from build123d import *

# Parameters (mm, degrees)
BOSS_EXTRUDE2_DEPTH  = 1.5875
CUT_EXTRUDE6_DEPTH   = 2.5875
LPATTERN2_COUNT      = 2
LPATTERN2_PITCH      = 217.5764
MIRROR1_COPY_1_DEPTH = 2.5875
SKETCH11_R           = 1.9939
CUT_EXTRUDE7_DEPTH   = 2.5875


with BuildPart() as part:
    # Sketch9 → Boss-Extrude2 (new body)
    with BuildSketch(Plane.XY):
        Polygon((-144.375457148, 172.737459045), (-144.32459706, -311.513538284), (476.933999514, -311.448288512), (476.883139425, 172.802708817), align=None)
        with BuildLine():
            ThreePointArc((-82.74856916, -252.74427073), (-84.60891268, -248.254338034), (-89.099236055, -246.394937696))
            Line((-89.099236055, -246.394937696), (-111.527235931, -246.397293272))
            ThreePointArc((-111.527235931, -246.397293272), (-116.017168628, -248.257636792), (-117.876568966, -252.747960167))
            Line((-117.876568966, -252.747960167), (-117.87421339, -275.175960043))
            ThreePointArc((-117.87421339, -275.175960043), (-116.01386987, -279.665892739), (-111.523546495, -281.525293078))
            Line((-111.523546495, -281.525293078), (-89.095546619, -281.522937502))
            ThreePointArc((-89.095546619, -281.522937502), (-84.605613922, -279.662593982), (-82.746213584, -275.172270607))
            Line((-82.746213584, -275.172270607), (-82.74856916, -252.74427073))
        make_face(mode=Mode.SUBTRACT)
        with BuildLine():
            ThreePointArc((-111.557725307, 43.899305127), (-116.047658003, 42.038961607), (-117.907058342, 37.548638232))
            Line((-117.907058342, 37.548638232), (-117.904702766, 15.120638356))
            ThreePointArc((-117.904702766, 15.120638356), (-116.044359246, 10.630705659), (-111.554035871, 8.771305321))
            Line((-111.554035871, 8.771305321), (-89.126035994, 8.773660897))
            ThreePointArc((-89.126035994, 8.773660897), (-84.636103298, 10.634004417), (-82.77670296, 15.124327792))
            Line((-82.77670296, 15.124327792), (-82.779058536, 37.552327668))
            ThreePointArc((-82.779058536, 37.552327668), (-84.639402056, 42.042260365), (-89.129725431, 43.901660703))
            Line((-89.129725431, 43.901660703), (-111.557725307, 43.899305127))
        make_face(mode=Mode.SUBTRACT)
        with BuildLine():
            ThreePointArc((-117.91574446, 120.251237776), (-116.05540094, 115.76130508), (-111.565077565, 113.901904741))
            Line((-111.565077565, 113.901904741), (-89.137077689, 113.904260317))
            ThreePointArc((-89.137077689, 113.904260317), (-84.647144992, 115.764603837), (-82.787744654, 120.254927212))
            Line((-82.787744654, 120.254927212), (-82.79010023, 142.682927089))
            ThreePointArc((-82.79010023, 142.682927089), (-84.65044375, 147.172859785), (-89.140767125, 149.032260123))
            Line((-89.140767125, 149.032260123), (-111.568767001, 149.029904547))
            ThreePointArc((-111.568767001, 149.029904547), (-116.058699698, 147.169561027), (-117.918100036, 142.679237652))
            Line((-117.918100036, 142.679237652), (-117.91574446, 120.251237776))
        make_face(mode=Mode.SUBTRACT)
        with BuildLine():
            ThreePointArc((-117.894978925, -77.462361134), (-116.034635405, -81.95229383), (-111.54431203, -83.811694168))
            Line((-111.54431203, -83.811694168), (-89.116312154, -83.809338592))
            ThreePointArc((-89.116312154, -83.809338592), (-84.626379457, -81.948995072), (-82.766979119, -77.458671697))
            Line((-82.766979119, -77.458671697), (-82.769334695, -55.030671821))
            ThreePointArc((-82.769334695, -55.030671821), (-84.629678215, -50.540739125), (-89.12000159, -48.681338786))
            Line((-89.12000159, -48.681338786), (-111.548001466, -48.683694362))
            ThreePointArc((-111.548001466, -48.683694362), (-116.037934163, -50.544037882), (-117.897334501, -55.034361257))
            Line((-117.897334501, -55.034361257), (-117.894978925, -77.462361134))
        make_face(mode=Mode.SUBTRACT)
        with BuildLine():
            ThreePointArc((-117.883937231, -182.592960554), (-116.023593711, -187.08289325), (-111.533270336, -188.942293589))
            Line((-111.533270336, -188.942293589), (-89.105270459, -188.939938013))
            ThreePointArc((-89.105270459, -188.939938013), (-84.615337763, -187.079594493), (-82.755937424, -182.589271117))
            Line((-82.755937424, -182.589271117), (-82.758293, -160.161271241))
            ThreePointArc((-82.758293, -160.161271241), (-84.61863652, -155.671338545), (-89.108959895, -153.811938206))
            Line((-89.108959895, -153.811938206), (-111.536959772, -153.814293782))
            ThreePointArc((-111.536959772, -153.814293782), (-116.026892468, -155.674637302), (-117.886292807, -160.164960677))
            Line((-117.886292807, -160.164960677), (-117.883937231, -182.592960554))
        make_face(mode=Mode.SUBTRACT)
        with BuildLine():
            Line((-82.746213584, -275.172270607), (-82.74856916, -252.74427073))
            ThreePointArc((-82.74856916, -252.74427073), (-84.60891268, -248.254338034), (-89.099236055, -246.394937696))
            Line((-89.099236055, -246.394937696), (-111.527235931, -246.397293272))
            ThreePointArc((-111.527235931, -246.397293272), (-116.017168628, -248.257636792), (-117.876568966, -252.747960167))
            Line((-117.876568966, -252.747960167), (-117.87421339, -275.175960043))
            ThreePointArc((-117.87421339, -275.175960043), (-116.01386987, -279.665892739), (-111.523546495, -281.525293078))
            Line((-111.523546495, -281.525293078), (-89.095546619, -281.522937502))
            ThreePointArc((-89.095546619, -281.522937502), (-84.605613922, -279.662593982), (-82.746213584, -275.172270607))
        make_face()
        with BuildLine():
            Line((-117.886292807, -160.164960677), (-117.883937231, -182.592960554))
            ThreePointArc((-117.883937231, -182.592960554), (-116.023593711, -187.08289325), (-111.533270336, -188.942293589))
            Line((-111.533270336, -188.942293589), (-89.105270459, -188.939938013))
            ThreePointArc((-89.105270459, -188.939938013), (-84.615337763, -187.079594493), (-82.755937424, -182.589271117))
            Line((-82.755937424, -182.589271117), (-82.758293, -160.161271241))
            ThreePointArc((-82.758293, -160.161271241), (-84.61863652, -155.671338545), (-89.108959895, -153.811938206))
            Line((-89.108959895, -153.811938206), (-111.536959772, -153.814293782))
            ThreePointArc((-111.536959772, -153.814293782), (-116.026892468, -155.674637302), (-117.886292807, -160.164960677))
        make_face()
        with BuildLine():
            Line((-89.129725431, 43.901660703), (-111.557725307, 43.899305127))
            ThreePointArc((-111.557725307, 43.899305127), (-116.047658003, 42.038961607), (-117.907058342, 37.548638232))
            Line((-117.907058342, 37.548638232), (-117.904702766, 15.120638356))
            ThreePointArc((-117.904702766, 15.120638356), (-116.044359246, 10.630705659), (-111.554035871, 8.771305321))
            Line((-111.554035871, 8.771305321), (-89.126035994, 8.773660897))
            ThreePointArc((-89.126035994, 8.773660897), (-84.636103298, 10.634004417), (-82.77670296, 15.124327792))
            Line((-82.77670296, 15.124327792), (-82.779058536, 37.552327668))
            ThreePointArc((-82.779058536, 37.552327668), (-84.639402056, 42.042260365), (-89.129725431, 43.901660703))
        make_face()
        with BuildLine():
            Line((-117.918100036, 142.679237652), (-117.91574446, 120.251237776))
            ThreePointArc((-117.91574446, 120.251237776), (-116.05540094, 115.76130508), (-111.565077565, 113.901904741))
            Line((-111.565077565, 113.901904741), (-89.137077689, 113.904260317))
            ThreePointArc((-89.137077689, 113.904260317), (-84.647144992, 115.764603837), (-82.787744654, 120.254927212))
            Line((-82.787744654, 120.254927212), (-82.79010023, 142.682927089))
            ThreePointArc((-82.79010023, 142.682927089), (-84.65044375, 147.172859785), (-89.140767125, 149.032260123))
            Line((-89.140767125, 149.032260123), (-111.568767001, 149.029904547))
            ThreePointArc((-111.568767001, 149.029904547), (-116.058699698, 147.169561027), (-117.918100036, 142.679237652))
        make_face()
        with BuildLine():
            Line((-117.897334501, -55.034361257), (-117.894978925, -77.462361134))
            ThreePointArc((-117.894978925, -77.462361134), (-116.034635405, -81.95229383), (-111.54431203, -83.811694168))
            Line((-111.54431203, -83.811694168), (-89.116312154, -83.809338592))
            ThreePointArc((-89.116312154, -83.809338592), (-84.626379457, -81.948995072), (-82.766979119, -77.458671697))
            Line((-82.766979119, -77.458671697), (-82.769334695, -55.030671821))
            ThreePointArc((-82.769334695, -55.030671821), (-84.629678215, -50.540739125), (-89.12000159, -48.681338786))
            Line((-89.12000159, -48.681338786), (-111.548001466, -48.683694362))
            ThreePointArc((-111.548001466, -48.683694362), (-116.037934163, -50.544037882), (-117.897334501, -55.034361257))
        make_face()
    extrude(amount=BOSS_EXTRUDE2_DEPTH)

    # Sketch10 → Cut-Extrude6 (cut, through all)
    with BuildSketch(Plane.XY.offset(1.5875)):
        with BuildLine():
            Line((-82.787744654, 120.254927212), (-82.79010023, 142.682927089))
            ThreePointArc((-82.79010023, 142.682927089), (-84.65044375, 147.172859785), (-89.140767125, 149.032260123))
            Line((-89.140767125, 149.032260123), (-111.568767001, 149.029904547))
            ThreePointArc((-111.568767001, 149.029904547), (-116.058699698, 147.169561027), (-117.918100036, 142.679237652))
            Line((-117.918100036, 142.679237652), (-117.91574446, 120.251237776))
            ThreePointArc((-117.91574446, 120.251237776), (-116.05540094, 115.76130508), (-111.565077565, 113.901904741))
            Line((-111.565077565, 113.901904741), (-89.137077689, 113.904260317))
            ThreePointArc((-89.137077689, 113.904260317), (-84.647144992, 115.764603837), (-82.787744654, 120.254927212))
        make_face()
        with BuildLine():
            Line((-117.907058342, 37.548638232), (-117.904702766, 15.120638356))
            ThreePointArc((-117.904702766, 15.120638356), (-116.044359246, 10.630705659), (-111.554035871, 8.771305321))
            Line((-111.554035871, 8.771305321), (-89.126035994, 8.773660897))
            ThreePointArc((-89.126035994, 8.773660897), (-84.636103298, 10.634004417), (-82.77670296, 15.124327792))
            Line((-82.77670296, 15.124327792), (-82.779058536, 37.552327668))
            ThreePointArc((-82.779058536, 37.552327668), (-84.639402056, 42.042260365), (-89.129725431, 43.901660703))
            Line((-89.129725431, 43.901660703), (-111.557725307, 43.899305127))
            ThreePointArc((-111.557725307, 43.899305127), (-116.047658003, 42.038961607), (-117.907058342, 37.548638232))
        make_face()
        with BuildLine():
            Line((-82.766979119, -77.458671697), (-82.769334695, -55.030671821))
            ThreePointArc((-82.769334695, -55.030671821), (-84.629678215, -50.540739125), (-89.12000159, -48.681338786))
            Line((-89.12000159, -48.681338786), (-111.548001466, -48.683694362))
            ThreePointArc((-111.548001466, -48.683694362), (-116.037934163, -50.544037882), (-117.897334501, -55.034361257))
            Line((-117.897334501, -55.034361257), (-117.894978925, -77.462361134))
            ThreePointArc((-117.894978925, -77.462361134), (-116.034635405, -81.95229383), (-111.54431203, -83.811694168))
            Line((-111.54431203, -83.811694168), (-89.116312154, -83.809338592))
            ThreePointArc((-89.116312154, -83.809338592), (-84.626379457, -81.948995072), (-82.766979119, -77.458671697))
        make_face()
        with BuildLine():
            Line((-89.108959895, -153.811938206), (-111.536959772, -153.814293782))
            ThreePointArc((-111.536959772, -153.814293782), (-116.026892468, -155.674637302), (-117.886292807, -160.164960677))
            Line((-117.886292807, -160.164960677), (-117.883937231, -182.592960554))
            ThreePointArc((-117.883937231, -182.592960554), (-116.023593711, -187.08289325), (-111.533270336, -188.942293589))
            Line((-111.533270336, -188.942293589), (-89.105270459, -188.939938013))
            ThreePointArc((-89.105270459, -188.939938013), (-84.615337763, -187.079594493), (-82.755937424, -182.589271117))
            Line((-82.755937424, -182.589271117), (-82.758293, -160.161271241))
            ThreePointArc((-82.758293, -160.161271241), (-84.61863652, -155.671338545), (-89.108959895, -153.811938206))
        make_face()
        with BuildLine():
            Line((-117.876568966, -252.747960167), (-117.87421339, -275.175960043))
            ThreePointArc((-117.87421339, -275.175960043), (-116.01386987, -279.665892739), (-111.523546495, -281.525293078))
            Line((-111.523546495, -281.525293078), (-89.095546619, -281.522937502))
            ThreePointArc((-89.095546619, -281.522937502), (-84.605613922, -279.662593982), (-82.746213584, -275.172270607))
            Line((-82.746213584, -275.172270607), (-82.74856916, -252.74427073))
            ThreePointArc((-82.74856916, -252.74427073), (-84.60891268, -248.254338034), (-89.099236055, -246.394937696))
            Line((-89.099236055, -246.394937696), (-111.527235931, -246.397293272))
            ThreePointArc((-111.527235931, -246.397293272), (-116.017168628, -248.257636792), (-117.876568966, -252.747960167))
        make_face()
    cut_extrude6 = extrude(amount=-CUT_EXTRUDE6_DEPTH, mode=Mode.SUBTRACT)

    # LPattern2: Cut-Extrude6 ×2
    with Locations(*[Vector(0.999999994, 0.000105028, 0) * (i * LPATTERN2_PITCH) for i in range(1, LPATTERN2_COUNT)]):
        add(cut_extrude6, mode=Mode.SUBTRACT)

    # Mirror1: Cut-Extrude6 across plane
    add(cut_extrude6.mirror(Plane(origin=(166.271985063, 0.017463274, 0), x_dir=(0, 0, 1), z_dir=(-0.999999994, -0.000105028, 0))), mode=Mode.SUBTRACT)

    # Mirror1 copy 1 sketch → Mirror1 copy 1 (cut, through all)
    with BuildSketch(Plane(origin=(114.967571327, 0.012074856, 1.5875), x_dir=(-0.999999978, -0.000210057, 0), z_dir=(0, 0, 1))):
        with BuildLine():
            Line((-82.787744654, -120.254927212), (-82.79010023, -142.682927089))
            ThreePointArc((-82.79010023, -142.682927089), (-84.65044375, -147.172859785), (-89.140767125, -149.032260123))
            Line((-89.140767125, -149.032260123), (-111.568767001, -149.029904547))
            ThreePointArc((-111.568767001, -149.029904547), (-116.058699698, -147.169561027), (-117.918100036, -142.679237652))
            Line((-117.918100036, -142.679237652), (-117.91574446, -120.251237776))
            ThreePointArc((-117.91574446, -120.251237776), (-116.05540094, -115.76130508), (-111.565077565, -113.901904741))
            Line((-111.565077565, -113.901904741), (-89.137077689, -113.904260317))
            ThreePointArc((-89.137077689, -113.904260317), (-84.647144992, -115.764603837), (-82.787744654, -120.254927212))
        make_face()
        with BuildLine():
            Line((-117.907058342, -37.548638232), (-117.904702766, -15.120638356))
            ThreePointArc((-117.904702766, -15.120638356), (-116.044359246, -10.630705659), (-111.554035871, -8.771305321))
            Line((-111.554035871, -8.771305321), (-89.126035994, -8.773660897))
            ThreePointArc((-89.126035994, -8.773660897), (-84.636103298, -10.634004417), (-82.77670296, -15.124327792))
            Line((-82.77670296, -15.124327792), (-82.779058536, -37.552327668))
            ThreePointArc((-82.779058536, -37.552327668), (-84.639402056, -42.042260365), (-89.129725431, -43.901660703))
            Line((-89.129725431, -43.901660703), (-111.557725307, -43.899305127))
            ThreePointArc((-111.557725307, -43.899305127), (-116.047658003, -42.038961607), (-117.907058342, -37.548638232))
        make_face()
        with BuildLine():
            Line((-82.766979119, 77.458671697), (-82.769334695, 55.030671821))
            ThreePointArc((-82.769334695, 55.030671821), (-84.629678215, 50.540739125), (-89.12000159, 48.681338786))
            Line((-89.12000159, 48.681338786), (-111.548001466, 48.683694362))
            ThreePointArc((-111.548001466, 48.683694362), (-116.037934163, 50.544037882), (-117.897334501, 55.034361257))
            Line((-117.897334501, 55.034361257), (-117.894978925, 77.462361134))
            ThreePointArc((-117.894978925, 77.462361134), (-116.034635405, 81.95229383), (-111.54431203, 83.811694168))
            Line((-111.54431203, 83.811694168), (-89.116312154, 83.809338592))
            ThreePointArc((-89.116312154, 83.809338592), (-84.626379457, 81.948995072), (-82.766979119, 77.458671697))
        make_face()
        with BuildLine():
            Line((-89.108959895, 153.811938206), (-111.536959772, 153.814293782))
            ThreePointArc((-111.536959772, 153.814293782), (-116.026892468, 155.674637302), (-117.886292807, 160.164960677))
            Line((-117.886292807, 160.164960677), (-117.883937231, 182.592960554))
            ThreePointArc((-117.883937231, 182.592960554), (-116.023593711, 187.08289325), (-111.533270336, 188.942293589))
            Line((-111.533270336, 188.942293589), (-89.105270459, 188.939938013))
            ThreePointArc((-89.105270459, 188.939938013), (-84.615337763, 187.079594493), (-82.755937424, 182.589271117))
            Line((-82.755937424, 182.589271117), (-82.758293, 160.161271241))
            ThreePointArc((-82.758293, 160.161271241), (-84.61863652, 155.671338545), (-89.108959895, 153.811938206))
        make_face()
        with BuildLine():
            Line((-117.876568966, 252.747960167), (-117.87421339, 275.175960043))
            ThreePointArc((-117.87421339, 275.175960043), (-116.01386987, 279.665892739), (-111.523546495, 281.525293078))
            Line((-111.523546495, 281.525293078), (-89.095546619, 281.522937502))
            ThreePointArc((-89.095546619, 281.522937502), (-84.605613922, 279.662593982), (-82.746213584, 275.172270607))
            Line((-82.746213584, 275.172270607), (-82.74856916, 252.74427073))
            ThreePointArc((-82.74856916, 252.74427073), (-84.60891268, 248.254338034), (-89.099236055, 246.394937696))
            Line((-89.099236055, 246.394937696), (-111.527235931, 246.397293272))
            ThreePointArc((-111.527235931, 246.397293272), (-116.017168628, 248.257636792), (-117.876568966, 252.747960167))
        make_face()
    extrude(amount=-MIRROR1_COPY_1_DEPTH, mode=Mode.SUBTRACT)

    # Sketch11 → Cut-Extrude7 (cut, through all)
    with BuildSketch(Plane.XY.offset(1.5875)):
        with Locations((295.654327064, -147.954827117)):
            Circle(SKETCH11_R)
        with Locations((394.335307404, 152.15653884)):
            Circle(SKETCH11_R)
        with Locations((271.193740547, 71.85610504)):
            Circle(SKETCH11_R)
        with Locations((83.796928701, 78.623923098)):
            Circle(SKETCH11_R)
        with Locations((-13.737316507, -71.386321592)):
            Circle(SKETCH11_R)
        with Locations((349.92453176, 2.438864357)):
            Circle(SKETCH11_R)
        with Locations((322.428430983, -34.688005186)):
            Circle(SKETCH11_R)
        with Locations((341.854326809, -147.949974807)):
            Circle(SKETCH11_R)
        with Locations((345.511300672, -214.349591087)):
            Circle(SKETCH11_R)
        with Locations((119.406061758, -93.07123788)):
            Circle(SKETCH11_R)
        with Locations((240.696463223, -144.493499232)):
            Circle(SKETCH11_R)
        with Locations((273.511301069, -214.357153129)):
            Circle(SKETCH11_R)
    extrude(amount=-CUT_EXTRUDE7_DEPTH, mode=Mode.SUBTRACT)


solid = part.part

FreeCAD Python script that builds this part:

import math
import FreeCAD as App
import Part
import Sketcher
from FreeCAD import Vector
Q = App.Units.Quantity

doc = App.newDocument("Part")
body = doc.addObject("PartDesign::Body", "Body")

# Sketch on XY plane
sketch1 = body.newObject("Sketcher::SketchObject", "Sketch")
sketch1.AttachmentSupport = (doc.getObject("XY_Plane"), [""])
sketch1.MapMode = "FlatFace"
sketch1.addGeometry(Part.LineSegment(Vector(-144, 173, 0), Vector(-144, -312, 0)), False)
sketch1.addGeometry(Part.LineSegment(Vector(-144, -312, 0), Vector(477, -311, 0)), False)
sketch1.addGeometry(Part.LineSegment(Vector(477, -311, 0), Vector(477, 173, 0)), False)
sketch1.addGeometry(Part.LineSegment(Vector(477, 173, 0), Vector(-144, 173, 0)), False)
sketch1.addConstraint(Sketcher.Constraint("Coincident", 0, 2, 1, 1))
sketch1.addConstraint(Sketcher.Constraint("Coincident", 1, 2, 2, 1))
sketch1.addConstraint(Sketcher.Constraint("Coincident", 2, 2, 3, 1))
sketch1.addConstraint(Sketcher.Constraint("Coincident", 3, 2, 0, 1))
sketch1.addConstraint(Sketcher.Constraint("Perpendicular", 0, 1))
sketch1.addConstraint(Sketcher.Constraint("Perpendicular", 1, 2))
sketch1.addConstraint(Sketcher.Constraint("Perpendicular", 2, 3))
sketch1.addConstraint(Sketcher.Constraint("Distance", 0, Q("19.065 in")))
sketch1.addConstraint(Sketcher.Constraint("Distance", 1, Q("24.459 in")))
sketch1.addConstraint(Sketcher.Constraint("DistanceX", -1, 1, 1, 2, 476.934))
sketch1.addConstraint(Sketcher.Constraint("DistanceY", 0, 2, -1, 1, 311.513538))
sketch1.addConstraint(Sketcher.Constraint("DistanceY", 1, 2, -1, 1, 311.448289))
pad1 = body.newObject("PartDesign::Pad", "Pad")
pad1.Profile = sketch1
pad1.Length = Q("0.0625 in")

# Sketch on XY plane
sketch2 = body.newObject("Sketcher::SketchObject", "Sketch001")
sketch2.AttachmentSupport = (doc.getObject("XY_Plane"), [""])
sketch2.MapMode = "FlatFace"
sketch2.AttachmentOffset = App.Placement(Vector(0, 0, 0.0625 * 25.4), App.Rotation())
sketch2.addGeometry(Part.LineSegment(Vector(-83, 120, 0), Vector(-83, 143, 0)), False)
sketch2.addGeometry(Part.ArcOfCircle(Part.Circle(Vector(-89, 143, 0), Vector(0, 0, 1), 6), math.radians(0), math.radians(90)), False)
sketch2.addGeometry(Part.LineSegment(Vector(-89, 149, 0), Vector(-112, 149, 0)), False)
sketch2.addGeometry(Part.ArcOfCircle(Part.Circle(Vector(-112, 143, 0), Vector(0, 0, 1), 6), math.radians(90), math.radians(180)), False)
sketch2.addGeometry(Part.LineSegment(Vector(-118, 143, 0), Vector(-118, 120, 0)), False)
sketch2.addGeometry(Part.ArcOfCircle(Part.Circle(Vector(-112, 120, 0), Vector(0, 0, 1), 6), math.radians(-180), math.radians(-90)), False)
sketch2.addGeometry(Part.LineSegment(Vector(-112, 114, 0), Vector(-89, 114, 0)), False)
sketch2.addGeometry(Part.ArcOfCircle(Part.Circle(Vector(-89, 120, 0), Vector(0, 0, 1), 6), math.radians(-90), math.radians(0)), False)
sketch2.addGeometry(Part.LineSegment(Vector(-118, 38, 0), Vector(-118, 15, 0)), False)
sketch2.addGeometry(Part.ArcOfCircle(Part.Circle(Vector(-112, 15, 0), Vector(0, 0, 1), 6), math.radians(-180), math.radians(-90)), False)
sketch2.addGeometry(Part.LineSegment(Vector(-112, 9, 0), Vector(-89, 9, 0)), False)
sketch2.addGeometry(Part.ArcOfCircle(Part.Circle(Vector(-89, 15, 0), Vector(0, 0, 1), 6), math.radians(-90), math.radians(0)), False)
sketch2.addGeometry(Part.LineSegment(Vector(-83, 15, 0), Vector(-83, 38, 0)), False)
sketch2.addGeometry(Part.ArcOfCircle(Part.Circle(Vector(-89, 38, 0), Vector(0, 0, 1), 6), math.radians(0), math.radians(90)), False)
sketch2.addGeometry(Part.LineSegment(Vector(-89, 44, 0), Vector(-112, 44, 0)), False)
sketch2.addGeometry(Part.ArcOfCircle(Part.Circle(Vector(-112, 38, 0), Vector(0, 0, 1), 6), math.radians(90), math.radians(180)), False)
sketch2.addGeometry(Part.LineSegment(Vector(-83, -77, 0), Vector(-83, -55, 0)), False)
sketch2.addGeometry(Part.ArcOfCircle(Part.Circle(Vector(-89, -55, 0), Vector(0, 0, 1), 6), math.radians(0), math.radians(90)), False)
sketch2.addGeometry(Part.LineSegment(Vector(-89, -49, 0), Vector(-112, -49, 0)), False)
sketch2.addGeometry(Part.ArcOfCircle(Part.Circle(Vector(-112, -55, 0), Vector(0, 0, 1), 6), math.radians(90), math.radians(180)), False)
sketch2.addGeometry(Part.LineSegment(Vector(-118, -55, 0), Vector(-118, -77, 0)), False)
sketch2.addGeometry(Part.ArcOfCircle(Part.Circle(Vector(-112, -77, 0), Vector(0, 0, 1), 6), math.radians(-180), math.radians(-90)), False)
sketch2.addGeometry(Part.LineSegment(Vector(-112, -84, 0), Vector(-89, -84, 0)), False)
sketch2.addGeometry(Part.ArcOfCircle(Part.Circle(Vector(-89, -77, 0), Vector(0, 0, 1), 6), math.radians(-90), math.radians(0)), False)
sketch2.addGeometry(Part.LineSegment(Vector(-89, -154, 0), Vector(-112, -154, 0)), False)
sketch2.addGeometry(Part.ArcOfCircle(Part.Circle(Vector(-112, -160, 0), Vector(0, 0, 1), 6), math.radians(90), math.radians(180)), False)
sketch2.addGeometry(Part.LineSegment(Vector(-118, -160, 0), Vector(-118, -183, 0)), False)
sketch2.addGeometry(Part.ArcOfCircle(Part.Circle(Vector(-112, -183, 0), Vector(0, 0, 1), 6), math.radians(-180), math.radians(-90)), False)
sketch2.addGeometry(Part.LineSegment(Vector(-112, -189, 0), Vector(-89, -189, 0)), False)
sketch2.addGeometry(Part.ArcOfCircle(Part.Circle(Vector(-89, -183, 0), Vector(0, 0, 1), 6), math.radians(-90), math.radians(0)), False)
sketch2.addGeometry(Part.LineSegment(Vector(-83, -183, 0), Vector(-83, -160, 0)), False)
sketch2.addGeometry(Part.ArcOfCircle(Part.Circle(Vector(-89, -160, 0), Vector(0, 0, 1), 6), math.radians(0), math.radians(90)), False)
sketch2.addGeometry(Part.LineSegment(Vector(-118, -253, 0), Vector(-118, -275, 0)), False)
sketch2.addGeometry(Part.ArcOfCircle(Part.Circle(Vector(-112, -275, 0), Vector(0, 0, 1), 6), math.radians(-180), math.radians(-90)), False)
sketch2.addGeometry(Part.LineSegment(Vector(-112, -282, 0), Vector(-89, -282, 0)), False)
sketch2.addGeometry(Part.ArcOfCircle(Part.Circle(Vector(-89, -275, 0), Vector(0, 0, 1), 6), math.radians(-90), math.radians(0)), False)
sketch2.addGeometry(Part.LineSegment(Vector(-83, -275, 0), Vector(-83, -253, 0)), False)
sketch2.addGeometry(Part.ArcOfCircle(Part.Circle(Vector(-89, -253, 0), Vector(0, 0, 1), 6), math.radians(0), math.radians(90)), False)
sketch2.addGeometry(Part.LineSegment(Vector(-89, -246, 0), Vector(-112, -246, 0)), False)
sketch2.addGeometry(Part.ArcOfCircle(Part.Circle(Vector(-112, -253, 0), Vector(0, 0, 1), 6), math.radians(90), math.radians(180)), False)
sketch2.addConstraint(Sketcher.Constraint("Tangent", 0, 2, 1, 1))
sketch2.addConstraint(Sketcher.Constraint("Tangent", 1, 2, 2, 1))
sketch2.addConstraint(Sketcher.Constraint("Tangent", 2, 2, 3, 1))
sketch2.addConstraint(Sketcher.Constraint("Tangent", 3, 2, 4, 1))
sketch2.addConstraint(Sketcher.Constraint("Tangent", 4, 2, 5, 1))
sketch2.addConstraint(Sketcher.Constraint("Tangent", 5, 2, 6, 1))
sketch2.addConstraint(Sketcher.Constraint("Tangent", 6, 2, 7, 1))
sketch2.addConstraint(Sketcher.Constraint("Tangent", 7, 2, 0, 1))
sketch2.addConstraint(Sketcher.Constraint("Tangent", 8, 2, 9, 1))
sketch2.addConstraint(Sketcher.Constraint("Tangent", 9, 2, 10, 1))
sketch2.addConstraint(Sketcher.Constraint("Tangent", 10, 2, 11, 1))
sketch2.addConstraint(Sketcher.Constraint("Tangent", 11, 2, 12, 1))
sketch2.addConstraint(Sketcher.Constraint("Tangent", 12, 2, 13, 1))
sketch2.addConstraint(Sketcher.Constraint("Tangent", 13, 2, 14, 1))
sketch2.addConstraint(Sketcher.Constraint("Tangent", 14, 2, 15, 1))
sketch2.addConstraint(Sketcher.Constraint("Tangent", 15, 2, 8, 1))
sketch2.addConstraint(Sketcher.Constraint("Tangent", 16, 2, 17, 1))
sketch2.addConstraint(Sketcher.Constraint("Tangent", 17, 2, 18, 1))
sketch2.addConstraint(Sketcher.Constraint("Tangent", 18, 2, 19, 1))
sketch2.addConstraint(Sketcher.Constraint("Tangent", 19, 2, 20, 1))
sketch2.addConstraint(Sketcher.Constraint("Tangent", 20, 2, 21, 1))
sketch2.addConstraint(Sketcher.Constraint("Tangent", 21, 2, 22, 1))
sketch2.addConstraint(Sketcher.Constraint("Tangent", 22, 2, 23, 1))
sketch2.addConstraint(Sketcher.Constraint("Tangent", 23, 2, 16, 1))
sketch2.addConstraint(Sketcher.Constraint("Tangent", 24, 2, 25, 1))
sketch2.addConstraint(Sketcher.Constraint("Tangent", 25, 2, 26, 1))
sketch2.addConstraint(Sketcher.Constraint("Tangent", 26, 2, 27, 1))
sketch2.addConstraint(Sketcher.Constraint("Tangent", 27, 2, 28, 1))
sketch2.addConstraint(Sketcher.Constraint("Tangent", 28, 2, 29, 1))
sketch2.addConstraint(Sketcher.Constraint("Tangent", 29, 2, 30, 1))
sketch2.addConstraint(Sketcher.Constraint("Tangent", 30, 2, 31, 1))
sketch2.addConstraint(Sketcher.Constraint("Tangent", 31, 2, 24, 1))
sketch2.addConstraint(Sketcher.Constraint("Tangent", 32, 2, 33, 1))
sketch2.addConstraint(Sketcher.Constraint("Tangent", 33, 2, 34, 1))
sketch2.addConstraint(Sketcher.Constraint("Tangent", 34, 2, 35, 1))
sketch2.addConstraint(Sketcher.Constraint("Tangent", 35, 2, 36, 1))
sketch2.addConstraint(Sketcher.Constraint("Tangent", 36, 2, 37, 1))
sketch2.addConstraint(Sketcher.Constraint("Tangent", 37, 2, 38, 1))
sketch2.addConstraint(Sketcher.Constraint("Tangent", 38, 2, 39, 1))
sketch2.addConstraint(Sketcher.Constraint("Tangent", 39, 2, 32, 1))
sketch2.addConstraint(Sketcher.Constraint("Equal", 1, 3))
sketch2.addConstraint(Sketcher.Constraint("Equal", 3, 5))
sketch2.addConstraint(Sketcher.Constraint("Equal", 5, 7))
sketch2.addConstraint(Sketcher.Constraint("Equal", 7, 9))
sketch2.addConstraint(Sketcher.Constraint("Equal", 9, 11))
sketch2.addConstraint(Sketcher.Constraint("Equal", 11, 13))
sketch2.addConstraint(Sketcher.Constraint("Equal", 13, 15))
sketch2.addConstraint(Sketcher.Constraint("Equal", 15, 17))
sketch2.addConstraint(Sketcher.Constraint("Equal", 17, 19))
sketch2.addConstraint(Sketcher.Constraint("Equal", 19, 21))
sketch2.addConstraint(Sketcher.Constraint("Equal", 21, 23))
sketch2.addConstraint(Sketcher.Constraint("Equal", 23, 25))
sketch2.addConstraint(Sketcher.Constraint("Equal", 25, 27))
sketch2.addConstraint(Sketcher.Constraint("Equal", 27, 29))
sketch2.addConstraint(Sketcher.Constraint("Equal", 29, 31))
sketch2.addConstraint(Sketcher.Constraint("Equal", 31, 33))
sketch2.addConstraint(Sketcher.Constraint("Equal", 33, 35))
sketch2.addConstraint(Sketcher.Constraint("Equal", 35, 37))
sketch2.addConstraint(Sketcher.Constraint("Equal", 37, 39))
sketch2.addConstraint(Sketcher.Constraint("Perpendicular", 0, 2))
sketch2.addConstraint(Sketcher.Constraint("Perpendicular", 2, 4))
sketch2.addConstraint(Sketcher.Constraint("Perpendicular", 4, 6))
sketch2.addConstraint(Sketcher.Constraint("Perpendicular", 6, 8))
sketch2.addConstraint(Sketcher.Constraint("Perpendicular", 8, 10))
sketch2.addConstraint(Sketcher.Constraint("Perpendicular", 10, 12))
sketch2.addConstraint(Sketcher.Constraint("Perpendicular", 12, 14))
sketch2.addConstraint(Sketcher.Constraint("Perpendicular", 14, 16))
sketch2.addConstraint(Sketcher.Constraint("Perpendicular", 16, 18))
sketch2.addConstraint(Sketcher.Constraint("Perpendicular", 18, 20))
sketch2.addConstraint(Sketcher.Constraint("Perpendicular", 20, 22))
sketch2.addConstraint(Sketcher.Constraint("Parallel", 22, 24))
sketch2.addConstraint(Sketcher.Constraint("Perpendicular", 24, 26))
sketch2.addConstraint(Sketcher.Constraint("Perpendicular", 26, 28))
sketch2.addConstraint(Sketcher.Constraint("Perpendicular", 28, 30))
sketch2.addConstraint(Sketcher.Constraint("Parallel", 30, 32))
sketch2.addConstraint(Sketcher.Constraint("Perpendicular", 32, 34))
sketch2.addConstraint(Sketcher.Constraint("Perpendicular", 34, 36))
sketch2.addConstraint(Sketcher.Constraint("Perpendicular", 36, 38))
sketch2.addConstraint(Sketcher.Constraint("Equal", 0, 2))
sketch2.addConstraint(Sketcher.Constraint("Equal", 6, 8))
sketch2.addConstraint(Sketcher.Constraint("Equal", 8, 10))
sketch2.addConstraint(Sketcher.Constraint("Equal", 14, 16))
sketch2.addConstraint(Sketcher.Constraint("Equal", 16, 18))
sketch2.addConstraint(Sketcher.Constraint("Equal", 22, 24))
sketch2.addConstraint(Sketcher.Constraint("Equal", 24, 26))
sketch2.addConstraint(Sketcher.Constraint("Equal", 30, 32))
sketch2.addConstraint(Sketcher.Constraint("Equal", 32, 34))
sketch2.addConstraint(Sketcher.Constraint("Radius", 1, Q("0.25 in")))
sketch2.addConstraint(Sketcher.Constraint("DistanceY", 9, 3, 5, 3, Q("4.139 in")))
sketch2.addConstraint(Sketcher.Constraint("DistanceY", 17, 3, 13, 3, Q("3.645 in")))
sketch2.addConstraint(Sketcher.Constraint("DistanceY", 25, 3, 19, 3, Q("4.139 in")))
sketch2.addConstraint(Sketcher.Constraint("DistanceY", 33, 3, 27, 3, Q("3.645 in")))
sketch2.addConstraint(Sketcher.Constraint("DistanceX", 27, 3, -1, 1, Q("4.3910999 in")))
sketch2.addConstraint(Sketcher.Constraint("Distance", 0, 22.428))
sketch2.addConstraint(Sketcher.Constraint("DistanceX", 1, 3, -1, 1, 89.1401))
sketch2.addConstraint(Sketcher.Constraint("DistanceX", 17, 2, -1, 1, 89.120002))
sketch2.addConstraint(Sketcher.Constraint("DistanceX", 10, 2, 16, 2, 6.356701))
sketch2.addConstraint(Sketcher.Constraint("DistanceY", -1, 1, 1, 3, 142.68226))
sketch2.addConstraint(Sketcher.Constraint("DistanceX", 13, 3, -1, 1, 89.129058))
sketch2.addConstraint(Sketcher.Constraint("DistanceX", 37, 3, -1, 1, 89.098569))
pocket1 = body.newObject("PartDesign::Pocket", "Pocket")
pocket1.Profile = sketch2
pocket1.Type = "ThroughAll"
doc.recompute()

datumline = body.newObject("PartDesign::Line", "DatumLine")
datumline.Placement = App.Placement(Vector(0, 0, 0), App.Rotation(Vector(0, 0, 1), Vector(0.999999994, 0.000105028, 0)))
linearpattern = body.newObject("PartDesign::LinearPattern", "LinearPattern")
linearpattern.Originals = [pocket1]
linearpattern.Direction = (datumline, [""])
linearpattern.Mode = "offset"
linearpattern.Offset = Q("8.566 in")
linearpattern.Occurrences = 2
body.Tip = linearpattern
doc.recompute()

datumplane = body.newObject("PartDesign::Plane", "DatumPlane")
datumplane.Placement = App.Placement(Vector(166.271985, 0.017463, 0), App.Rotation(Vector(-0.000105028, 0.999999994, 0), Vector(0, 0, -1), Vector(-0.999999994, -0.000105028, 0), "ZXY"))
mirrored = body.newObject("PartDesign::Mirrored", "Mirrored")
mirrored.Originals = [pocket1]
mirrored.MirrorPlane = (datumplane, [""])
body.Tip = mirrored

# Sketch on XY plane
sketch3 = body.newObject("Sketcher::SketchObject", "Sketch002")
sketch3.AttachmentSupport = (doc.getObject("XY_Plane"), [""])
sketch3.MapMode = "FlatFace"
sketch3.AttachmentOffset = App.Placement(Vector(0, 0, 0.0625 * 25.4), App.Rotation())
sketch3.addGeometry(Part.LineSegment(Vector(198, 143, 0), Vector(198, 120, 0)), False)
sketch3.addGeometry(Part.ArcOfCircle(Part.Circle(Vector(204, 120, 0), Vector(0, 0, 1), 6), math.radians(-180), math.radians(-90)), False)
sketch3.addGeometry(Part.LineSegment(Vector(204, 114, 0), Vector(227, 114, 0)), False)
sketch3.addGeometry(Part.ArcOfCircle(Part.Circle(Vector(227, 120, 0), Vector(0, 0, 1), 6), math.radians(-90), math.radians(0)), False)
sketch3.addGeometry(Part.LineSegment(Vector(233, 120, 0), Vector(233, 143, 0)), False)
sketch3.addGeometry(Part.ArcOfCircle(Part.Circle(Vector(227, 143, 0), Vector(0, 0, 1), 6), math.radians(0), math.radians(90)), False)
sketch3.addGeometry(Part.LineSegment(Vector(227, 149, 0), Vector(204, 149, 0)), False)
sketch3.addGeometry(Part.ArcOfCircle(Part.Circle(Vector(204, 143, 0), Vector(0, 0, 1), 6), math.radians(90), math.radians(180)), False)
sketch3.addGeometry(Part.LineSegment(Vector(233, 15, 0), Vector(233, 38, 0)), False)
sketch3.addGeometry(Part.ArcOfCircle(Part.Circle(Vector(227, 38, 0), Vector(0, 0, 1), 6), math.radians(0), math.radians(90)), False)
sketch3.addGeometry(Part.LineSegment(Vector(227, 44, 0), Vector(204, 44, 0)), False)
sketch3.addGeometry(Part.ArcOfCircle(Part.Circle(Vector(204, 38, 0), Vector(0, 0, 1), 6), math.radians(90), math.radians(180)), False)
sketch3.addGeometry(Part.LineSegment(Vector(198, 38, 0), Vector(198, 15, 0)), False)
sketch3.addGeometry(Part.ArcOfCircle(Part.Circle(Vector(204, 15, 0), Vector(0, 0, 1), 6), math.radians(-180), math.radians(-90)), False)
sketch3.addGeometry(Part.LineSegment(Vector(204, 9, 0), Vector(227, 9, 0)), False)
sketch3.addGeometry(Part.ArcOfCircle(Part.Circle(Vector(227, 15, 0), Vector(0, 0, 1), 6), math.radians(-90), math.radians(0)), False)
sketch3.addGeometry(Part.LineSegment(Vector(198, -55, 0), Vector(198, -77, 0)), False)
sketch3.addGeometry(Part.ArcOfCircle(Part.Circle(Vector(204, -77, 0), Vector(0, 0, 1), 6), math.radians(-180), math.radians(-90)), False)
sketch3.addGeometry(Part.LineSegment(Vector(204, -84, 0), Vector(227, -84, 0)), False)
sketch3.addGeometry(Part.ArcOfCircle(Part.Circle(Vector(227, -77, 0), Vector(0, 0, 1), 6), math.radians(-90), math.radians(0)), False)
sketch3.addGeometry(Part.LineSegment(Vector(233, -77, 0), Vector(233, -55, 0)), False)
sketch3.addGeometry(Part.ArcOfCircle(Part.Circle(Vector(227, -55, 0), Vector(0, 0, 1), 6), math.radians(0), math.radians(90)), False)
sketch3.addGeometry(Part.LineSegment(Vector(227, -49, 0), Vector(204, -49, 0)), False)
sketch3.addGeometry(Part.ArcOfCircle(Part.Circle(Vector(204, -55, 0), Vector(0, 0, 1), 6), math.radians(90), math.radians(180)), False)
sketch3.addGeometry(Part.LineSegment(Vector(227, -154, 0), Vector(204, -154, 0)), False)
sketch3.addGeometry(Part.ArcOfCircle(Part.Circle(Vector(204, -160, 0), Vector(0, 0, 1), 6), math.radians(90), math.radians(180)), False)
sketch3.addGeometry(Part.LineSegment(Vector(198, -160, 0), Vector(198, -183, 0)), False)
sketch3.addGeometry(Part.ArcOfCircle(Part.Circle(Vector(204, -183, 0), Vector(0, 0, 1), 6), math.radians(-180), math.radians(-90)), False)
sketch3.addGeometry(Part.LineSegment(Vector(204, -189, 0), Vector(227, -189, 0)), False)
sketch3.addGeometry(Part.ArcOfCircle(Part.Circle(Vector(227, -183, 0), Vector(0, 0, 1), 6), math.radians(-90), math.radians(0)), False)
sketch3.addGeometry(Part.LineSegment(Vector(233, -183, 0), Vector(233, -160, 0)), False)
sketch3.addGeometry(Part.ArcOfCircle(Part.Circle(Vector(227, -160, 0), Vector(0, 0, 1), 6), math.radians(0), math.radians(90)), False)
sketch3.addGeometry(Part.LineSegment(Vector(233, -275, 0), Vector(233, -253, 0)), False)
sketch3.addGeometry(Part.ArcOfCircle(Part.Circle(Vector(227, -253, 0), Vector(0, 0, 1), 6), math.radians(0), math.radians(90)), False)
sketch3.addGeometry(Part.LineSegment(Vector(227, -246, 0), Vector(204, -246, 0)), False)
sketch3.addGeometry(Part.ArcOfCircle(Part.Circle(Vector(204, -253, 0), Vector(0, 0, 1), 6), math.radians(90), math.radians(180)), False)
sketch3.addGeometry(Part.LineSegment(Vector(198, -253, 0), Vector(198, -275, 0)), False)
sketch3.addGeometry(Part.ArcOfCircle(Part.Circle(Vector(204, -275, 0), Vector(0, 0, 1), 6), math.radians(-180), math.radians(-90)), False)
sketch3.addGeometry(Part.LineSegment(Vector(204, -281, 0), Vector(227, -281, 0)), False)
sketch3.addGeometry(Part.ArcOfCircle(Part.Circle(Vector(227, -275, 0), Vector(0, 0, 1), 6), math.radians(-90), math.radians(0)), False)
sketch3.addConstraint(Sketcher.Constraint("Tangent", 0, 2, 1, 1))
sketch3.addConstraint(Sketcher.Constraint("Tangent", 1, 2, 2, 1))
sketch3.addConstraint(Sketcher.Constraint("Tangent", 2, 2, 3, 1))
sketch3.addConstraint(Sketcher.Constraint("Tangent", 3, 2, 4, 1))
sketch3.addConstraint(Sketcher.Constraint("Tangent", 4, 2, 5, 1))
sketch3.addConstraint(Sketcher.Constraint("Tangent", 5, 2, 6, 1))
sketch3.addConstraint(Sketcher.Constraint("Tangent", 6, 2, 7, 1))
sketch3.addConstraint(Sketcher.Constraint("Tangent", 7, 2, 0, 1))
sketch3.addConstraint(Sketcher.Constraint("Tangent", 8, 2, 9, 1))
sketch3.addConstraint(Sketcher.Constraint("Tangent", 9, 2, 10, 1))
sketch3.addConstraint(Sketcher.Constraint("Tangent", 10, 2, 11, 1))
sketch3.addConstraint(Sketcher.Constraint("Tangent", 11, 2, 12, 1))
sketch3.addConstraint(Sketcher.Constraint("Tangent", 12, 2, 13, 1))
sketch3.addConstraint(Sketcher.Constraint("Tangent", 13, 2, 14, 1))
sketch3.addConstraint(Sketcher.Constraint("Tangent", 14, 2, 15, 1))
sketch3.addConstraint(Sketcher.Constraint("Tangent", 15, 2, 8, 1))
sketch3.addConstraint(Sketcher.Constraint("Tangent", 16, 2, 17, 1))
sketch3.addConstraint(Sketcher.Constraint("Tangent", 17, 2, 18, 1))
sketch3.addConstraint(Sketcher.Constraint("Tangent", 18, 2, 19, 1))
sketch3.addConstraint(Sketcher.Constraint("Tangent", 19, 2, 20, 1))
sketch3.addConstraint(Sketcher.Constraint("Tangent", 20, 2, 21, 1))
sketch3.addConstraint(Sketcher.Constraint("Tangent", 21, 2, 22, 1))
sketch3.addConstraint(Sketcher.Constraint("Tangent", 22, 2, 23, 1))
sketch3.addConstraint(Sketcher.Constraint("Tangent", 23, 2, 16, 1))
sketch3.addConstraint(Sketcher.Constraint("Tangent", 24, 2, 25, 1))
sketch3.addConstraint(Sketcher.Constraint("Tangent", 25, 2, 26, 1))
sketch3.addConstraint(Sketcher.Constraint("Tangent", 26, 2, 27, 1))
sketch3.addConstraint(Sketcher.Constraint("Tangent", 27, 2, 28, 1))
sketch3.addConstraint(Sketcher.Constraint("Tangent", 28, 2, 29, 1))
sketch3.addConstraint(Sketcher.Constraint("Tangent", 29, 2, 30, 1))
sketch3.addConstraint(Sketcher.Constraint("Tangent", 30, 2, 31, 1))
sketch3.addConstraint(Sketcher.Constraint("Tangent", 31, 2, 24, 1))
sketch3.addConstraint(Sketcher.Constraint("Tangent", 32, 2, 33, 1))
sketch3.addConstraint(Sketcher.Constraint("Tangent", 33, 2, 34, 1))
sketch3.addConstraint(Sketcher.Constraint("Tangent", 34, 2, 35, 1))
sketch3.addConstraint(Sketcher.Constraint("Tangent", 35, 2, 36, 1))
sketch3.addConstraint(Sketcher.Constraint("Tangent", 36, 2, 37, 1))
sketch3.addConstraint(Sketcher.Constraint("Tangent", 37, 2, 38, 1))
sketch3.addConstraint(Sketcher.Constraint("Tangent", 38, 2, 39, 1))
sketch3.addConstraint(Sketcher.Constraint("Tangent", 39, 2, 32, 1))
sketch3.addConstraint(Sketcher.Constraint("Equal", 1, 3))
sketch3.addConstraint(Sketcher.Constraint("Equal", 3, 5))
sketch3.addConstraint(Sketcher.Constraint("Equal", 5, 7))
sketch3.addConstraint(Sketcher.Constraint("Equal", 7, 9))
sketch3.addConstraint(Sketcher.Constraint("Equal", 9, 11))
sketch3.addConstraint(Sketcher.Constraint("Equal", 11, 13))
sketch3.addConstraint(Sketcher.Constraint("Equal", 13, 15))
sketch3.addConstraint(Sketcher.Constraint("Equal", 15, 17))
sketch3.addConstraint(Sketcher.Constraint("Equal", 17, 19))
sketch3.addConstraint(Sketcher.Constraint("Equal", 19, 21))
sketch3.addConstraint(Sketcher.Constraint("Equal", 21, 23))
sketch3.addConstraint(Sketcher.Constraint("Equal", 23, 25))
sketch3.addConstraint(Sketcher.Constraint("Equal", 25, 27))
sketch3.addConstraint(Sketcher.Constraint("Equal", 27, 29))
sketch3.addConstraint(Sketcher.Constraint("Equal", 29, 31))
sketch3.addConstraint(Sketcher.Constraint("Equal", 31, 33))
sketch3.addConstraint(Sketcher.Constraint("Equal", 33, 35))
sketch3.addConstraint(Sketcher.Constraint("Equal", 35, 37))
sketch3.addConstraint(Sketcher.Constraint("Equal", 37, 39))
sketch3.addConstraint(Sketcher.Constraint("Perpendicular", 0, 2))
sketch3.addConstraint(Sketcher.Constraint("Perpendicular", 2, 4))
sketch3.addConstraint(Sketcher.Constraint("Perpendicular", 4, 6))
sketch3.addConstraint(Sketcher.Constraint("Perpendicular", 6, 8))
sketch3.addConstraint(Sketcher.Constraint("Perpendicular", 8, 10))
sketch3.addConstraint(Sketcher.Constraint("Perpendicular", 10, 12))
sketch3.addConstraint(Sketcher.Constraint("Perpendicular", 12, 14))
sketch3.addConstraint(Sketcher.Constraint("Perpendicular", 14, 16))
sketch3.addConstraint(Sketcher.Constraint("Perpendicular", 16, 18))
sketch3.addConstraint(Sketcher.Constraint("Perpendicular", 18, 20))
sketch3.addConstraint(Sketcher.Constraint("Perpendicular", 20, 22))
sketch3.addConstraint(Sketcher.Constraint("Parallel", 22, 24))
sketch3.addConstraint(Sketcher.Constraint("Perpendicular", 24, 26))
sketch3.addConstraint(Sketcher.Constraint("Perpendicular", 26, 28))
sketch3.addConstraint(Sketcher.Constraint("Perpendicular", 28, 30))
sketch3.addConstraint(Sketcher.Constraint("Parallel", 30, 32))
sketch3.addConstraint(Sketcher.Constraint("Perpendicular", 32, 34))
sketch3.addConstraint(Sketcher.Constraint("Perpendicular", 34, 36))
sketch3.addConstraint(Sketcher.Constraint("Perpendicular", 36, 38))
sketch3.addConstraint(Sketcher.Constraint("Equal", 0, 2))
sketch3.addConstraint(Sketcher.Constraint("Equal", 6, 8))
sketch3.addConstraint(Sketcher.Constraint("Equal", 8, 10))
sketch3.addConstraint(Sketcher.Constraint("Equal", 14, 16))
sketch3.addConstraint(Sketcher.Constraint("Equal", 16, 18))
sketch3.addConstraint(Sketcher.Constraint("Equal", 22, 24))
sketch3.addConstraint(Sketcher.Constraint("Equal", 24, 26))
sketch3.addConstraint(Sketcher.Constraint("Equal", 30, 32))
sketch3.addConstraint(Sketcher.Constraint("Equal", 32, 34))
sketch3.addConstraint(Sketcher.Constraint("Radius", 1, Q("0.25 in")))
sketch3.addConstraint(Sketcher.Constraint("DistanceY", 9, 3, 5, 3, Q("4.139 in")))
sketch3.addConstraint(Sketcher.Constraint("DistanceY", 17, 3, 13, 3, Q("3.645 in")))
sketch3.addConstraint(Sketcher.Constraint("DistanceY", 25, 3, 23, 3, Q("4.139 in")))
sketch3.addConstraint(Sketcher.Constraint("DistanceY", 33, 3, 31, 3, Q("3.645 in")))
sketch3.addConstraint(Sketcher.Constraint("DistanceX", -1, 1, 27, 3, Q("8.0359 in")))
sketch3.addConstraint(Sketcher.Constraint("Distance", 0, 22.428))
sketch3.addConstraint(Sketcher.Constraint("DistanceX", -1, 1, 5, 3, 226.505698))
sketch3.addConstraint(Sketcher.Constraint("DistanceX", 28, 2, 32, 2, 6.356701))
sketch3.addConstraint(Sketcher.Constraint("DistanceY", -1, 1, 5, 3, 142.715412))
sketch3.addConstraint(Sketcher.Constraint("DistanceX", -1, 1, 9, 3, 226.51674))
sketch3.addConstraint(Sketcher.Constraint("DistanceX", -1, 1, 17, 3, 204.100819))
sketch3.addConstraint(Sketcher.Constraint("DistanceY", 25, 3, -1, 1, 160.131142))
pocket2 = body.newObject("PartDesign::Pocket", "Pocket001")
pocket2.Profile = sketch3
pocket2.Type = "ThroughAll"

# Sketch on XY plane
sketch4 = body.newObject("Sketcher::SketchObject", "Sketch003")
sketch4.AttachmentSupport = (doc.getObject("XY_Plane"), [""])
sketch4.MapMode = "FlatFace"
sketch4.AttachmentOffset = App.Placement(Vector(0, 0, 0.0625 * 25.4), App.Rotation())
sketch4.addGeometry(Part.Circle(Vector(295.7, -148, 0), Vector(0, 0, 1), 2), False)
sketch4.addGeometry(Part.Circle(Vector(394.3, 152.2, 0), Vector(0, 0, 1), 2), False)
sketch4.addGeometry(Part.Circle(Vector(271.2, 71.9, 0), Vector(0, 0, 1), 2), False)
sketch4.addGeometry(Part.Circle(Vector(83.8, 78.6, 0), Vector(0, 0, 1), 2), False)
sketch4.addGeometry(Part.Circle(Vector(-13.7, -71.4, 0), Vector(0, 0, 1), 2), False)
sketch4.addGeometry(Part.Circle(Vector(349.9, 2.4, 0), Vector(0, 0, 1), 2), False)
sketch4.addGeometry(Part.Circle(Vector(322.4, -34.7, 0), Vector(0, 0, 1), 2), False)
sketch4.addGeometry(Part.Circle(Vector(341.9, -147.9, 0), Vector(0, 0, 1), 2), False)
sketch4.addGeometry(Part.Circle(Vector(345.5, -214.3, 0), Vector(0, 0, 1), 2), False)
sketch4.addGeometry(Part.Circle(Vector(119.4, -93.1, 0), Vector(0, 0, 1), 2), False)
sketch4.addGeometry(Part.Circle(Vector(240.7, -144.5, 0), Vector(0, 0, 1), 2), False)
sketch4.addGeometry(Part.Circle(Vector(273.5, -214.4, 0), Vector(0, 0, 1), 2), False)
sketch4.addConstraint(Sketcher.Constraint("Equal", 0, 1))
sketch4.addConstraint(Sketcher.Constraint("Equal", 1, 2))
sketch4.addConstraint(Sketcher.Constraint("Equal", 2, 3))
sketch4.addConstraint(Sketcher.Constraint("Equal", 3, 4))
sketch4.addConstraint(Sketcher.Constraint("Equal", 4, 5))
sketch4.addConstraint(Sketcher.Constraint("Equal", 5, 6))
sketch4.addConstraint(Sketcher.Constraint("Equal", 6, 7))
sketch4.addConstraint(Sketcher.Constraint("Equal", 7, 8))
sketch4.addConstraint(Sketcher.Constraint("Equal", 8, 9))
sketch4.addConstraint(Sketcher.Constraint("Equal", 9, 10))
sketch4.addConstraint(Sketcher.Constraint("Equal", 10, 11))
sketch4.addConstraint(Sketcher.Constraint("Diameter", 0, Q("0.157 in")))
sketch4.addConstraint(Sketcher.Constraint("DistanceY", 4, 3, 1, 3, Q("8.8009 in")))
sketch4.addConstraint(Sketcher.Constraint("DistanceX", -1, 1, 8, 3, 345.511301))
sketch4.addConstraint(Sketcher.Constraint("DistanceY", 10, 3, -1, 1, 144.493499))
sketch4.addConstraint(Sketcher.Constraint("DistanceX", -1, 1, 11, 3, 273.511301))
sketch4.addConstraint(Sketcher.Constraint("DistanceX", 3, 3, 0, 3, 211.857398))
sketch4.addConstraint(Sketcher.Constraint("DistanceX", 6, 3, 5, 3, 27.496101))
sketch4.addConstraint(Sketcher.Constraint("DistanceX", 0, 3, 7, 3, 46.2))
sketch4.addConstraint(Sketcher.Constraint("DistanceX", 9, 3, 10, 3, 121.290401))
sketch4.addConstraint(Sketcher.Constraint("DistanceY", -1, 1, 1, 3, 152.156539))
sketch4.addConstraint(Sketcher.Constraint("DistanceX", -1, 1, 2, 3, 271.193741))
sketch4.addConstraint(Sketcher.Constraint("DistanceX", -1, 1, 3, 3, 83.796929))
sketch4.addConstraint(Sketcher.Constraint("DistanceX", -1, 1, 5, 3, 349.924532))
sketch4.addConstraint(Sketcher.Constraint("DistanceY", 8, 3, -1, 1, 214.349591))
sketch4.addConstraint(Sketcher.Constraint("DistanceX", -1, 1, 9, 3, 119.406062))
sketch4.addConstraint(Sketcher.Constraint("DistanceX", 0, 3, 1, 3, 98.68098))
sketch4.addConstraint(Sketcher.Constraint("DistanceY", 2, 3, 3, 3, 6.767818))
sketch4.addConstraint(Sketcher.Constraint("DistanceY", 0, 3, 3, 3, 226.57875))
sketch4.addConstraint(Sketcher.Constraint("DistanceY", 5, 3, 2, 3, 69.417241))
sketch4.addConstraint(Sketcher.Constraint("DistanceX", 4, 3, 5, 3, 363.661848))
sketch4.addConstraint(Sketcher.Constraint("DistanceY", 6, 3, 5, 3, 37.12687))
sketch4.addConstraint(Sketcher.Constraint("DistanceY", 7, 3, 6, 3, 113.26197))
sketch4.addConstraint(Sketcher.Constraint("DistanceY", 9, 3, 3, 3, 171.695161))
sketch4.addConstraint(Sketcher.Constraint("DistanceY", 10, 3, 9, 3, 51.422261))
sketch4.addConstraint(Sketcher.Constraint("DistanceY", 11, 3, 7, 3, 66.407178))
pocket3 = body.newObject("PartDesign::Pocket", "Pocket002")
pocket3.Profile = sketch4
pocket3.Type = "ThroughAll"

doc.recompute()
